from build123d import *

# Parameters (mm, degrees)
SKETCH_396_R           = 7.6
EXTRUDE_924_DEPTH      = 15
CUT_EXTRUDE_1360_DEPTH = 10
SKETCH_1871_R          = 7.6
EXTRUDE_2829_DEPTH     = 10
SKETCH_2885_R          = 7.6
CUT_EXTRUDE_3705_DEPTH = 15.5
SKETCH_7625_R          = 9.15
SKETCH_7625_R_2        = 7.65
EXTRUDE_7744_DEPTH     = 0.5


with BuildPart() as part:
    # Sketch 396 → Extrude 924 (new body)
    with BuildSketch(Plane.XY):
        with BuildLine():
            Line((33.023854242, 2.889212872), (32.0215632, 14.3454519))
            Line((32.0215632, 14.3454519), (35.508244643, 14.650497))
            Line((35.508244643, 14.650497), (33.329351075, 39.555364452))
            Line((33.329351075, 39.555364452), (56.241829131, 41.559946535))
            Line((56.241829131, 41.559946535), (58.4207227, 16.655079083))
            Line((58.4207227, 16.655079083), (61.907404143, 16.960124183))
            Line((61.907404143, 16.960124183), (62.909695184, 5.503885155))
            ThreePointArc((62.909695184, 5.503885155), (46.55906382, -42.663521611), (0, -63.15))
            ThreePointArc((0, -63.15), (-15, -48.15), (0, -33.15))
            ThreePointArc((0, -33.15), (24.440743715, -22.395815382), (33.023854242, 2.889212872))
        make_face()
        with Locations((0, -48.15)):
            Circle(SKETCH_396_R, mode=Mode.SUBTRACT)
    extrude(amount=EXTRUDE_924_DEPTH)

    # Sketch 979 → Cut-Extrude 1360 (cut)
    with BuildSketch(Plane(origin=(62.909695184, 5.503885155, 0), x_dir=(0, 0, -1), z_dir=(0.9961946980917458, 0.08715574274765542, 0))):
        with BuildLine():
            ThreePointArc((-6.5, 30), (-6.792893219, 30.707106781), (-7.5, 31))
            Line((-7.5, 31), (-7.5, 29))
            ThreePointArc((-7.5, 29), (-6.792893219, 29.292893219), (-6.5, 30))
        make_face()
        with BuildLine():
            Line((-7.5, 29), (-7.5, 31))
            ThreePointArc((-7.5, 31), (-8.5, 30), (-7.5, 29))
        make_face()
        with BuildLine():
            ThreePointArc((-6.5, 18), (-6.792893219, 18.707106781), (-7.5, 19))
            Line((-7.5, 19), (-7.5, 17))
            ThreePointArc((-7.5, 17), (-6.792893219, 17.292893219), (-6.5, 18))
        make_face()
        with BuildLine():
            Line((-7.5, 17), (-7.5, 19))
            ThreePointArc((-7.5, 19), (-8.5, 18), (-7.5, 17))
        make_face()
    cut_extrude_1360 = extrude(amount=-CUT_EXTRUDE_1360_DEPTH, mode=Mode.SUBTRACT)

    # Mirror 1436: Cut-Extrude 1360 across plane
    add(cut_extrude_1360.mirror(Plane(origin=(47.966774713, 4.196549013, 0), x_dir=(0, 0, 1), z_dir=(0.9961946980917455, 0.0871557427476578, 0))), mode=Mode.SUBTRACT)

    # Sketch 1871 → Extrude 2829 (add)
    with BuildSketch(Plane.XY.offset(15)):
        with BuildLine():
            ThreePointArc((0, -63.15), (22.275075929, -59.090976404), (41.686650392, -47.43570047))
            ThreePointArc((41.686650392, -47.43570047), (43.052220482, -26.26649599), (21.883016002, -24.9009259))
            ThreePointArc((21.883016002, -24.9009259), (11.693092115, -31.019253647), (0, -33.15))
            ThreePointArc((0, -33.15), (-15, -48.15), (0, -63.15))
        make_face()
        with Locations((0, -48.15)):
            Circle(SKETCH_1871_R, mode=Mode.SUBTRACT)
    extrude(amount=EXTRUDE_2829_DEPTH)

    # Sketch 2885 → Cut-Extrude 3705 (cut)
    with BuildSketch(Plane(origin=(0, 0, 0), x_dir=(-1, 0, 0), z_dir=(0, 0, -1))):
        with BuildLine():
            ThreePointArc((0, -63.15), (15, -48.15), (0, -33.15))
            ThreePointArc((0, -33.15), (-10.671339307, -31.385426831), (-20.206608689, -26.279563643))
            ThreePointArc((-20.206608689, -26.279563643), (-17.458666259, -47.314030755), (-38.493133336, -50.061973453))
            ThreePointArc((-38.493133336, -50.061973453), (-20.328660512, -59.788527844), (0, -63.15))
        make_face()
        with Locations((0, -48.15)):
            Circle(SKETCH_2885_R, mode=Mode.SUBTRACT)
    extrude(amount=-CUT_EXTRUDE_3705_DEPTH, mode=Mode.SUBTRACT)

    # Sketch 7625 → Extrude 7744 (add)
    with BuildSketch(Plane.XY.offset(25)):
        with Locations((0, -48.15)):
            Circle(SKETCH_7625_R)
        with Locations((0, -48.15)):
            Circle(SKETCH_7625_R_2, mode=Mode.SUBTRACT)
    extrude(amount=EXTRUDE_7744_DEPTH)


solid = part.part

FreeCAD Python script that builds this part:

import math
import FreeCAD as App
import Part
import Sketcher

V = App.Vector
Q = App.Units.Quantity

doc = App.newDocument("Part")
body = doc.addObject("PartDesign::Body", "Body")

# Sketch on XY plane
sketch1 = doc.addObject("Sketcher::SketchObject", "Sketch")
body.addObject(sketch1)
sketch1.AttachmentSupport = (doc.XY_Plane, [""])
sketch1.MapMode = "FlatFace"
sketch1.addGeometry([
    Part.LineSegment(V(32, 14.3, 0), V(33, 2.9, 0)),  # 0
    Part.ArcOfCircle(Part.Circle(V(0, 0, 0), V(0, 0, 1), 33.2), math.radians(-90), math.radians(5)),  # 1
    Part.ArcOfCircle(Part.Circle(V(0, -48.1, 0), V(0, 0, 1), 15), math.radians(90), math.radians(270)),  # 2
    Part.ArcOfCircle(Part.Circle(V(0, 0, 0), V(0, 0, 1), 63.1), math.radians(-90), math.radians(5)),  # 3
    Part.LineSegment(V(62.9, 5.5, 0), V(61.9, 17, 0)),  # 4
    Part.LineSegment(V(61.9, 17, 0), V(58.4, 16.7, 0)),  # 5
    Part.LineSegment(V(58.4, 16.7, 0), V(56.2, 41.6, 0)),  # 6
    Part.LineSegment(V(56.2, 41.6, 0), V(33.3, 39.6, 0)),  # 7
    Part.LineSegment(V(33.3, 39.6, 0), V(35.5, 14.7, 0)),  # 8
    Part.LineSegment(V(35.5, 14.7, 0), V(32, 14.3, 0)),  # 9
    Part.Circle(V(0, -48.1, 0), V(0, 0, 1), 7.6),  # 10
], False)
sketch1.addConstraint([
    Sketcher.Constraint("Tangent", 0, 2, 1, 2),
    Sketcher.Constraint("Tangent", 1, 1, 2, 1),
    Sketcher.Constraint("Tangent", 2, 2, 3, 1),
    Sketcher.Constraint("Tangent", 3, 2, 4, 1),
    Sketcher.Constraint("Coincident", 4, 2, 5, 1),
    Sketcher.Constraint("Coincident", 5, 2, 6, 1),
    Sketcher.Constraint("Coincident", 6, 2, 7, 1),
    Sketcher.Constraint("Coincident", 7, 2, 8, 1),
    Sketcher.Constraint("Coincident", 8, 2, 9, 1),
    Sketcher.Constraint("Coincident", 9, 2, 0, 1),
    Sketcher.Constraint("Coincident", 1, 3, -1, 1),
    Sketcher.Constraint("Coincident", 3, 3, -1, 1),
    Sketcher.Constraint("Coincident", 10, 3, 2, 3),
    Sketcher.Constraint("PointOnObject", 2, 3, -2),
    Sketcher.Constraint("Parallel", 0, 4),
    Sketcher.Constraint("Perpendicular", 4, 5),
    Sketcher.Constraint("Perpendicular", 5, 6),
    Sketcher.Constraint("Perpendicular", 6, 7),
    Sketcher.Constraint("Perpendicular", 7, 8),
    Sketcher.Constraint("Perpendicular", 8, 9),
    Sketcher.Constraint("Equal", 0, 4),
    Sketcher.Constraint("Equal", 5, 9),
    Sketcher.Constraint("Radius", 2, 15.0),
    Sketcher.Constraint("Diameter", 10, 15.2),
    Sketcher.Constraint("Angle", 0, Q("-85 deg")),
    Sketcher.Constraint("Radius", 1, 33.15),
    Sketcher.Constraint("Distance", 6, 25.0),
    Sketcher.Constraint("Distance", 7, 23.0),
    Sketcher.Constraint("Distance", 0, 11.5),
])
pad1 = doc.addObject("PartDesign::Pad", "Pad")
body.addObject(pad1)
pad1.Profile = sketch1
pad1.Length = 15

# Sketch on an angled plane
sketch2 = doc.addObject("Sketcher::SketchObject", "Sketch001")
body.addObject(sketch2)
sketch2.Placement = App.Placement(V(62.909695, 5.503885, 0), App.Rotation(V(0, 0, -1), V(-0.087155743, 0.996194698, 0), V(0.996194698, 0.087155743, 0), "ZXY"))
sketch2.addGeometry([
    Part.ArcOfCircle(Part.Circle(V(-7.5, 30, 0), V(0, 0, 1), 1), math.radians(0), math.radians(90)),  # 0
    Part.ArcOfCircle(Part.Circle(V(-7.5, 30, 0), V(0, 0, 1), 1), math.radians(90), math.radians(270)),  # 1
    Part.ArcOfCircle(Part.Circle(V(-7.5, 30, 0), V(0, 0, 1), 1), math.radians(-90), math.radians(0)),  # 2
    Part.ArcOfCircle(Part.Circle(V(-7.5, 18, 0), V(0, 0, 1), 1), math.radians(0), math.radians(90)),  # 3
    Part.ArcOfCircle(Part.Circle(V(-7.5, 18, 0), V(0, 0, 1), 1), math.radians(90), math.radians(270)),  # 4
    Part.ArcOfCircle(Part.Circle(V(-7.5, 18, 0), V(0, 0, 1), 1), math.radians(-90), math.radians(0)),  # 5
], False)
sketch2.addConstraint([
    Sketcher.Constraint("Tangent", 0, 2, 1, 1),
    Sketcher.Constraint("Tangent", 1, 2, 2, 1),
    Sketcher.Constraint("Tangent", 2, 2, 0, 1),
    Sketcher.Constraint("Tangent", 3, 2, 4, 1),
    Sketcher.Constraint("Tangent", 4, 2, 5, 1),
    Sketcher.Constraint("Tangent", 5, 2, 3, 1),
    Sketcher.Constraint("Equal", 2, 3),
    Sketcher.Constraint("Horizontal", 1, 3, 2, 2),
    Sketcher.Constraint("Horizontal", 4, 3, 5, 2),
    Sketcher.Constraint("Vertical", 2, 3, 3, 3),
    Sketcher.Constraint("Vertical", 5, 3, 0, 2),
    Sketcher.Constraint("Vertical", 0, 2, 1, 2),
    Sketcher.Constraint("Vertical", 1, 2, 3, 2),
    Sketcher.Constraint("Vertical", 3, 2, 4, 2),
    Sketcher.Constraint("Radius", 0, 1.0),
    Sketcher.Constraint("DistanceY", -1, 1, 0, 3, 30.0),
    Sketcher.Constraint("DistanceY", -1, 1, 3, 3, 18.0),
    Sketcher.Constraint("DistanceX", 0, 3, -1, 1, 7.5),
])
pocket1 = doc.addObject("PartDesign::Pocket", "Pocket")
body.addObject(pocket1)
pocket1.Profile = sketch2
pocket1.Length = 10
doc.recompute()

datumplane = doc.addObject("PartDesign::Plane", "DatumPlane")
body.addObject(datumplane)
datumplane.Placement = App.Placement(V(47.966775, 4.196549, 0), App.Rotation(V(0.087155743, -0.996194698, 0), V(0, 0, -1), V(0.996194698, 0.087155743, 0), "ZXY"))
mirrored = doc.addObject("PartDesign::Mirrored", "Mirrored")
body.addObject(mirrored)
mirrored.Originals = [pocket1]
mirrored.MirrorPlane = (datumplane, [""])
body.Tip = mirrored

# Sketch on XY plane
sketch3 = doc.addObject("Sketcher::SketchObject", "Sketch002")
body.addObject(sketch3)
sketch3.AttachmentSupport = (doc.XY_Plane, [""])
sketch3.MapMode = "FlatFace"
sketch3.AttachmentOffset = App.Placement(V(0, 0, 15), App.Rotation())
sketch3.addGeometry([
    Part.ArcOfCircle(Part.Circle(V(0, 0, 0), V(0, 0, 1), 63), math.radians(-90), math.radians(-49)),  # 0
    Part.ArcOfCircle(Part.Circle(V(32, -36, 0), V(0, 0, 1), 15), math.radians(-49), math.radians(131)),  # 1
    Part.ArcOfCircle(Part.Circle(V(0, 0, 0), V(0, 0, 1), 33), math.radians(-90), math.radians(-49)),  # 2
    Part.ArcOfCircle(Part.Circle(V(0, -48, 0), V(0, 0, 1), 15), math.radians(90), math.radians(270)),  # 3
    Part.Circle(V(0, -48, 0), V(0, 0, 1), 8),  # 4
], False)
sketch3.addConstraint([
    Sketcher.Constraint("Tangent", 0, 2, 1, 1),
    Sketcher.Constraint("Tangent", 1, 2, 2, 2),
    Sketcher.Constraint("Tangent", 2, 1, 3, 1),
    Sketcher.Constraint("Tangent", 3, 2, 0, 1),
    Sketcher.Constraint("Coincident", 0, 3, -1, 1),
    Sketcher.Constraint("Coincident", 2, 3, -1, 1),
    Sketcher.Constraint("Coincident", 4, 3, 3, 3),
    Sketcher.Constraint("PointOnObject", 3, 3, -2),
    Sketcher.Constraint("Radius", 1, 15.0),
    Sketcher.Constraint("Diameter", 4, 15.2),
    Sketcher.Constraint("Radius", 0, 63.15),
    Sketcher.Constraint("DistanceY", 0, 2, -1, 1, 47.4357),
])
pad2 = doc.addObject("PartDesign::Pad", "Pad001")
body.addObject(pad2)
pad2.Profile = sketch3
pad2.Length = 10

# Sketch on XY plane
sketch4 = doc.addObject("Sketcher::SketchObject", "Sketch003")
body.addObject(sketch4)
sketch4.AttachmentSupport = (doc.XY_Plane, [""])
sketch4.MapMode = "FlatFace"
sketch4.addGeometry([
    Part.ArcOfCircle(Part.Circle(V(0, -48, 0), V(0, 0, 1), 15), math.radians(90), math.radians(270)),  # 0
    Part.ArcOfCircle(Part.Circle(V(0, 0, 0), V(0, 0, 1), 33), math.radians(-90), math.radians(-52)),  # 1
    Part.ArcOfCircle(Part.Circle(V(29, -38, 0), V(0, 0, 1), 15), math.radians(128), math.radians(308)),  # 2
    Part.ArcOfCircle(Part.Circle(V(0, 0, 0), V(0, 0, 1), 63), math.radians(-90), math.radians(-52)),  # 3
    Part.Circle(V(0, -48, 0), V(0, 0, 1), 8),  # 4
], False)
sketch4.addConstraint([
    Sketcher.Constraint("Tangent", 0, 1, 1, 1),
    Sketcher.Constraint("Tangent", 1, 2, 2, 1),
    Sketcher.Constraint("Tangent", 2, 2, 3, 2),
    Sketcher.Constraint("Tangent", 3, 1, 0, 2),
    Sketcher.Constraint("Coincident", 1, 3, -1, 1),
    Sketcher.Constraint("Coincident", 3, 3, -1, 1),
    Sketcher.Constraint("Coincident", 4, 3, 0, 3),
    Sketcher.Constraint("PointOnObject", 0, 3, -2),
    Sketcher.Constraint("Radius", 0, 15.0),
    Sketcher.Constraint("Diameter", 4, 15.2),
    Sketcher.Constraint("Radius", 1, 33.15),
    Sketcher.Constraint("DistanceX", -1, 1, 2, 3, 29.349871),
])
pocket2 = doc.addObject("PartDesign::Pocket", "Pocket001")
body.addObject(pocket2)
pocket2.Profile = sketch4
pocket2.Length = 15.5
pocket2.Reversed = True

# Sketch on XY plane
sketch5 = doc.addObject("Sketcher::SketchObject", "Sketch004")
body.addObject(sketch5)
sketch5.AttachmentSupport = (doc.XY_Plane, [""])
sketch5.MapMode = "FlatFace"
sketch5.AttachmentOffset = App.Placement(V(0, 0, 25), App.Rotation())
sketch5.addGeometry([
    Part.Circle(V(0, -48, 0), V(0, 0, 1), 9),
    Part.Circle(V(0, -48, 0), V(0, 0, 1), 8),
], False)
sketch5.addConstraint([
    Sketcher.Constraint("Coincident", 1, 3, 0, 3),
    Sketcher.Constraint("PointOnObject", 0, 3, -2),
    Sketcher.Constraint("Diameter", 0, 18.3),
    Sketcher.Constraint("Diameter", 1, 15.3),
    Sketcher.Constraint("DistanceY", 0, 3, -1, 1, 48.15),
])
pad3 = doc.addObject("PartDesign::Pad", "Pad002")
body.addObject(pad3)
pad3.Profile = sketch5
pad3.Length = 0.5

doc.recompute()
